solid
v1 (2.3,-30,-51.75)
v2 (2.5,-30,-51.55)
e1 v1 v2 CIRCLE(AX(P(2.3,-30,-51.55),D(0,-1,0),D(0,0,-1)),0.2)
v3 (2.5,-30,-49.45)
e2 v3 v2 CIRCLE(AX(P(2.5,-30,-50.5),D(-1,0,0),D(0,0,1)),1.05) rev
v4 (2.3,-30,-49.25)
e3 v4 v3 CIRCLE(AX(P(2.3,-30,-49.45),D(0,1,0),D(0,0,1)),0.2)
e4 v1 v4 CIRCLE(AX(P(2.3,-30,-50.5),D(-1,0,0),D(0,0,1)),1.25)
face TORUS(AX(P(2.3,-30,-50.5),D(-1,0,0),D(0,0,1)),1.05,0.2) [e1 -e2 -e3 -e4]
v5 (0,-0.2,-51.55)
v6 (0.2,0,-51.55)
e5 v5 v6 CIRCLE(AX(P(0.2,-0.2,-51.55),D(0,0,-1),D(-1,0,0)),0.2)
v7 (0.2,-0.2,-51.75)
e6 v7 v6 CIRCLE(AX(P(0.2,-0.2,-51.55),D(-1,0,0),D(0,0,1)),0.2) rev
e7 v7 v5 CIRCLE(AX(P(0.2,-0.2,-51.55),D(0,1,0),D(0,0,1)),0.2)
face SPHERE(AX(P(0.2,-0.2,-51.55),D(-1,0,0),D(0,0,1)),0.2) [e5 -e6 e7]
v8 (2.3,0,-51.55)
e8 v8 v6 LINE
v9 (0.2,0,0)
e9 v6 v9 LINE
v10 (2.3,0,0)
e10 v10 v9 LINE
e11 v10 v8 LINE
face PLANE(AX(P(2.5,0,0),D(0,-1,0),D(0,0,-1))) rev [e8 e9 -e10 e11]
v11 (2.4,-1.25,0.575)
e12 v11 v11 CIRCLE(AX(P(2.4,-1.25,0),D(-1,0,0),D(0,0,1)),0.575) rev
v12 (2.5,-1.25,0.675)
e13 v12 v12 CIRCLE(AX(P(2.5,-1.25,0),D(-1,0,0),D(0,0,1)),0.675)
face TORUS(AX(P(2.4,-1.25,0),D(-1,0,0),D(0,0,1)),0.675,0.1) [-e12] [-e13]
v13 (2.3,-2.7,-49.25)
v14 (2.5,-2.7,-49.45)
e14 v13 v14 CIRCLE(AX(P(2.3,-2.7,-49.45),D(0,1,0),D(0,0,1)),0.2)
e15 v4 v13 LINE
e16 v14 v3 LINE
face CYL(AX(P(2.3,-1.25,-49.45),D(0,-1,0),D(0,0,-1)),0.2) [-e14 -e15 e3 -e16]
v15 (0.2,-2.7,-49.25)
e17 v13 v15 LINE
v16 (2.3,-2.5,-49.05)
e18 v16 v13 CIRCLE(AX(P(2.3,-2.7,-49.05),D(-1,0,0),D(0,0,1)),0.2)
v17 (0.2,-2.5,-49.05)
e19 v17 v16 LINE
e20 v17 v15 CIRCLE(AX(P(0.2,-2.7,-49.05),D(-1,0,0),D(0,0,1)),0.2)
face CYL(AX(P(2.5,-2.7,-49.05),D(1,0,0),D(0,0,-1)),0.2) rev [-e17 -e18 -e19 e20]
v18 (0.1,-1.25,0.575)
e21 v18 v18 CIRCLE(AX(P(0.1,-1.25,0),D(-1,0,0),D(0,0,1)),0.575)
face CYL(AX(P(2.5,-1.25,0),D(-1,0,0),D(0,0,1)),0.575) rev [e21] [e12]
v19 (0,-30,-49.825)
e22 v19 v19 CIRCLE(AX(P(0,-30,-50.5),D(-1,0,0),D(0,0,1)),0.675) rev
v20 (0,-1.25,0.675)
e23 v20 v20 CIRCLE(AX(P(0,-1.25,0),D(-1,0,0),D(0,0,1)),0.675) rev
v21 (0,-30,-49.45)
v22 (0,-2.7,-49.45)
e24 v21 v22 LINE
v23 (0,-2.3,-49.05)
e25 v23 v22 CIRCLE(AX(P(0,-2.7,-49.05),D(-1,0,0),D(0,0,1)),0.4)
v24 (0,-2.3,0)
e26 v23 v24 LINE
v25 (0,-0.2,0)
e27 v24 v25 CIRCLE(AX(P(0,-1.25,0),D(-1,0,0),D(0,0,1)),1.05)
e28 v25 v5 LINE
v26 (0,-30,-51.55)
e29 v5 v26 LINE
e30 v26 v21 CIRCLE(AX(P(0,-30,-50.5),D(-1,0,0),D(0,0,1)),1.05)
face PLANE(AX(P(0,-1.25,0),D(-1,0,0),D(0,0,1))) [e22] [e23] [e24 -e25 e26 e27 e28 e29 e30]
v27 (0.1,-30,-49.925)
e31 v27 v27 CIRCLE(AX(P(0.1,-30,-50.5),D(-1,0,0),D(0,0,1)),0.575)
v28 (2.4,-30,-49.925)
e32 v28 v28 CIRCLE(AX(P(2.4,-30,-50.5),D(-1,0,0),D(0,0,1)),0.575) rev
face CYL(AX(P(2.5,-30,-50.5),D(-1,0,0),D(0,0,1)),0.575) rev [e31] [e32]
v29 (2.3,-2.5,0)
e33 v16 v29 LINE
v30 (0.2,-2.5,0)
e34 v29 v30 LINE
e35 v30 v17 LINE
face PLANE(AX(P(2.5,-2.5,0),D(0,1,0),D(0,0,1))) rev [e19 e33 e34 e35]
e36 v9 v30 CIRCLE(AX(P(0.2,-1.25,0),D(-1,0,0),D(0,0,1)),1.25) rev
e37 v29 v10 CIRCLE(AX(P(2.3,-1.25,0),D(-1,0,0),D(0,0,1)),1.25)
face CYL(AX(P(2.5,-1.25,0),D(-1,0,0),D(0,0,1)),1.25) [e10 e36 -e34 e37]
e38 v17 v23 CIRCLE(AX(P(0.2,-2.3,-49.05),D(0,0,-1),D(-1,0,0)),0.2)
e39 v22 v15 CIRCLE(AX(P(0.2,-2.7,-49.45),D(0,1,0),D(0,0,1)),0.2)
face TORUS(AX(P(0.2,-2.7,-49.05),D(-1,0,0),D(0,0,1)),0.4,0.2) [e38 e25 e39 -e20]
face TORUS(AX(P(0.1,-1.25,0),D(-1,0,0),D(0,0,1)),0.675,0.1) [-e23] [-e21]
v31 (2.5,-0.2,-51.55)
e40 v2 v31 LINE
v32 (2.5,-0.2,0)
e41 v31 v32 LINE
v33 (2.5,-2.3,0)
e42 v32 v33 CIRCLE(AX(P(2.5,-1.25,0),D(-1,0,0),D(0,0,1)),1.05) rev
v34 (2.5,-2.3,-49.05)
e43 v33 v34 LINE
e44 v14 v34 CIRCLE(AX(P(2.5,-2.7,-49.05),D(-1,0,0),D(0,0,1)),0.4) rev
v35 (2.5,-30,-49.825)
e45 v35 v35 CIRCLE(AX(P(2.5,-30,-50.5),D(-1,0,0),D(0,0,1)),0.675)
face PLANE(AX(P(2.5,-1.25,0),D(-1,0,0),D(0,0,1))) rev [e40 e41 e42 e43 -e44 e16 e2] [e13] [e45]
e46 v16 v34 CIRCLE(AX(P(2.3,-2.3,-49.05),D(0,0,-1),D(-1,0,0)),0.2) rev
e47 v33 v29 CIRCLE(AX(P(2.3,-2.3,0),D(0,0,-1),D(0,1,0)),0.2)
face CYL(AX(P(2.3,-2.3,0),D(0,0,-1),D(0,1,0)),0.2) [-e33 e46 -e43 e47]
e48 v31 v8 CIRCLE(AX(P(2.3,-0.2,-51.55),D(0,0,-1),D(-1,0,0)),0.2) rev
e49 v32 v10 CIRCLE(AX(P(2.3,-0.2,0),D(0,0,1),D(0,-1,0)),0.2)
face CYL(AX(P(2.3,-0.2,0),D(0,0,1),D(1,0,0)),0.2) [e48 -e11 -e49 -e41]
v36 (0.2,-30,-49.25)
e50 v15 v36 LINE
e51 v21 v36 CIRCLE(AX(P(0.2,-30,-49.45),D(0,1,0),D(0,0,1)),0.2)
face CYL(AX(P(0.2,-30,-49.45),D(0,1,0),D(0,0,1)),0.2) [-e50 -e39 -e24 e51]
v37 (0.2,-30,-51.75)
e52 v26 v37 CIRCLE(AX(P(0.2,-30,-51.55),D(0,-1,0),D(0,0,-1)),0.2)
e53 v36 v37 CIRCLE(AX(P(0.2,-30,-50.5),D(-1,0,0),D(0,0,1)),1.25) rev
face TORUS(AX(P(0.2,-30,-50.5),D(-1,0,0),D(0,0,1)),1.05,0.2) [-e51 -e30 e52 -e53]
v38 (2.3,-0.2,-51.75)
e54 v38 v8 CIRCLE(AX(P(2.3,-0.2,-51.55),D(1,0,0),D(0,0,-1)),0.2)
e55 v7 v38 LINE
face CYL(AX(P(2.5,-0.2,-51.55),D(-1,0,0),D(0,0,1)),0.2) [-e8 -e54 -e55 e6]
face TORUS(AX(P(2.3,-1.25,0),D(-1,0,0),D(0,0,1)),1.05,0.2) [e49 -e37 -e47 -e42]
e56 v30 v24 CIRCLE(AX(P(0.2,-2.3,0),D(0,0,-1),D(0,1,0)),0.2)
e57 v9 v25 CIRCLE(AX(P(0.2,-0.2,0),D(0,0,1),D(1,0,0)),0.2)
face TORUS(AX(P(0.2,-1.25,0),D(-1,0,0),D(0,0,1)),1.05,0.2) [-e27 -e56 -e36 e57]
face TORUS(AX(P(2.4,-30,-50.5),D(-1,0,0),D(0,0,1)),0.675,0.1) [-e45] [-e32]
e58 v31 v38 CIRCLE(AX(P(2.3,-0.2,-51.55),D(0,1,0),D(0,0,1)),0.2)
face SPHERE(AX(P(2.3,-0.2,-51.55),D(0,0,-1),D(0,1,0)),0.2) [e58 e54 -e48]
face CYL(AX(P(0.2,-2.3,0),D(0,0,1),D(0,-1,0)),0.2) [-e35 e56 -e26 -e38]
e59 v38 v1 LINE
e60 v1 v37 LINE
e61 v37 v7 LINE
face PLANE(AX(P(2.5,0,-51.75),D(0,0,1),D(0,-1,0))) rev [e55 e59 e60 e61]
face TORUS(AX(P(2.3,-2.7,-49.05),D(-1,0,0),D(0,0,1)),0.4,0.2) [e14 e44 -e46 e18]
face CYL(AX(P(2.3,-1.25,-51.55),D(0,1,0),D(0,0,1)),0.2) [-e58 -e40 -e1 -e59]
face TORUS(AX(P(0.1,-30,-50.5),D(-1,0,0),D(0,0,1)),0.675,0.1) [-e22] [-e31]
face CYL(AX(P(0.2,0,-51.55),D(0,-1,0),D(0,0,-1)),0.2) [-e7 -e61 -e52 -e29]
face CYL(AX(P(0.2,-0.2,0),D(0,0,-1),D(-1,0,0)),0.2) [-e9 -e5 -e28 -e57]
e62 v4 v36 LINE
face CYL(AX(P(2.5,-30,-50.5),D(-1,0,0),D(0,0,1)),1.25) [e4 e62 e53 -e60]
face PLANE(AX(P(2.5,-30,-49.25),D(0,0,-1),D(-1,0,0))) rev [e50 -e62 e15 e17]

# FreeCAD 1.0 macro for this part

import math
import FreeCAD as App
import Part
import Sketcher


def edges_at(feature, points):
    """Names of the edges that pass closest to the given points."""
    edges = feature.Shape.Edges
    near = lambda p: min(range(len(edges)), key=lambda i: edges[i].distToShape(Part.Vertex(*p))[0])
    return sorted({f"Edge{near(p) + 1}" for p in points})

doc = App.newDocument("Part")
body = doc.addObject("PartDesign::Body", "Body")

sketch1 = doc.addObject("Sketcher::SketchObject", "Sketch")
body.addObject(sketch1)
sketch1.AttachmentSupport = (doc.YZ_Plane, [""])
sketch1.MapMode = "FlatFace"
sketch1.addGeometry([
    Part.LineSegment(App.Vector(0, -51.75, 0), App.Vector(0, 0, 0)),
    Part.ArcOfCircle(Part.Circle(App.Vector(-1.25, 0, 0), App.Vector(0, 0, 1), 1.25), math.radians(0), math.radians(180)),
    Part.LineSegment(App.Vector(-2.5, 0, 0), App.Vector(-2.5, -49.25, 0)),
    Part.LineSegment(App.Vector(-2.5, -49.25, 0), App.Vector(-30, -49.25, 0)),
    Part.ArcOfCircle(Part.Circle(App.Vector(-30, -50.5, 0), App.Vector(0, 0, 1), 1.25), math.radians(90), math.radians(270)),
    Part.LineSegment(App.Vector(-30, -51.75, 0), App.Vector(0, -51.75, 0)),
    Part.Circle(App.Vector(-30, -50.5, 0), App.Vector(0, 0, 1), 0.575),
    Part.Circle(App.Vector(-1.25, 0, 0), App.Vector(0, 0, 1), 0.575),
], False)
sketch1.addConstraint([
    Sketcher.Constraint("Tangent", 0, 2, 1, 1),
    Sketcher.Constraint("Tangent", 1, 2, 2, 1),
    Sketcher.Constraint("Coincident", 2, 2, 3, 1),
    Sketcher.Constraint("Tangent", 3, 2, 4, 1),
    Sketcher.Constraint("Tangent", 4, 2, 5, 1),
    Sketcher.Constraint("Coincident", 5, 2, 0, 1),
    Sketcher.Constraint("Vertical", 0),
    Sketcher.Constraint("Vertical", 2),
    Sketcher.Constraint("Horizontal", 3),
    Sketcher.Constraint("Horizontal", 5),
    Sketcher.Constraint("Coincident", 0, 2, -1, 1),
    Sketcher.Constraint("Coincident", 6, 3, 4, 3),
    Sketcher.Constraint("Coincident", 7, 3, 1, 3),
    Sketcher.Constraint("Equal", 1, 4),
    Sketcher.Constraint("Equal", 6, 7),
    Sketcher.Constraint("Diameter", 6, 1.15),
    Sketcher.Constraint("DistanceX", 5, 1, 5, 2, 30.0),
    Sketcher.Constraint("Radius", 1, 1.25),
    Sketcher.Constraint("DistanceY", 0, 1, 0, 2, 51.75),
])
pad1 = doc.addObject("PartDesign::Pad", "Pad")
body.addObject(pad1)
pad1.Profile = sketch1
pad1.Length = 2.5
doc.recompute()

fillet = doc.addObject("PartDesign::Fillet", "Fillet")
body.addObject(fillet)
fillet.Base = (pad1, edges_at(pad1, [
    (0, -1.25, 0.575),
    (2.5, -1.25, 0.575),
    (0, -30, -49.925),
    (2.5, -30, -49.925),
]))
fillet.Radius = 0.1
doc.recompute()

fillet2 = doc.addObject("PartDesign::Fillet", "Fillet001")
body.addObject(fillet2)
fillet2.Base = (fillet, edges_at(fillet, [
    (0, -1.25, 1.25),
    (1.25, 0, -51.75),
    (2.5, -16.25, -49.25),
    (1.25, -2.5, -49.25),
    (2.5, -31.25, -50.5),
    (2.5, -15, -51.75),
    (2.5, 0, -25.875),
    (2.5, -1.25, 1.25),
    (0, 0, -25.875),
    (0, -15, -51.75),
    (0, -31.25, -50.5),
    (2.5, -2.5, -24.625),
    (0, -16.25, -49.25),
    (0, -2.5, -24.625),
]))
fillet2.Radius = 0.2

doc.recompute()
